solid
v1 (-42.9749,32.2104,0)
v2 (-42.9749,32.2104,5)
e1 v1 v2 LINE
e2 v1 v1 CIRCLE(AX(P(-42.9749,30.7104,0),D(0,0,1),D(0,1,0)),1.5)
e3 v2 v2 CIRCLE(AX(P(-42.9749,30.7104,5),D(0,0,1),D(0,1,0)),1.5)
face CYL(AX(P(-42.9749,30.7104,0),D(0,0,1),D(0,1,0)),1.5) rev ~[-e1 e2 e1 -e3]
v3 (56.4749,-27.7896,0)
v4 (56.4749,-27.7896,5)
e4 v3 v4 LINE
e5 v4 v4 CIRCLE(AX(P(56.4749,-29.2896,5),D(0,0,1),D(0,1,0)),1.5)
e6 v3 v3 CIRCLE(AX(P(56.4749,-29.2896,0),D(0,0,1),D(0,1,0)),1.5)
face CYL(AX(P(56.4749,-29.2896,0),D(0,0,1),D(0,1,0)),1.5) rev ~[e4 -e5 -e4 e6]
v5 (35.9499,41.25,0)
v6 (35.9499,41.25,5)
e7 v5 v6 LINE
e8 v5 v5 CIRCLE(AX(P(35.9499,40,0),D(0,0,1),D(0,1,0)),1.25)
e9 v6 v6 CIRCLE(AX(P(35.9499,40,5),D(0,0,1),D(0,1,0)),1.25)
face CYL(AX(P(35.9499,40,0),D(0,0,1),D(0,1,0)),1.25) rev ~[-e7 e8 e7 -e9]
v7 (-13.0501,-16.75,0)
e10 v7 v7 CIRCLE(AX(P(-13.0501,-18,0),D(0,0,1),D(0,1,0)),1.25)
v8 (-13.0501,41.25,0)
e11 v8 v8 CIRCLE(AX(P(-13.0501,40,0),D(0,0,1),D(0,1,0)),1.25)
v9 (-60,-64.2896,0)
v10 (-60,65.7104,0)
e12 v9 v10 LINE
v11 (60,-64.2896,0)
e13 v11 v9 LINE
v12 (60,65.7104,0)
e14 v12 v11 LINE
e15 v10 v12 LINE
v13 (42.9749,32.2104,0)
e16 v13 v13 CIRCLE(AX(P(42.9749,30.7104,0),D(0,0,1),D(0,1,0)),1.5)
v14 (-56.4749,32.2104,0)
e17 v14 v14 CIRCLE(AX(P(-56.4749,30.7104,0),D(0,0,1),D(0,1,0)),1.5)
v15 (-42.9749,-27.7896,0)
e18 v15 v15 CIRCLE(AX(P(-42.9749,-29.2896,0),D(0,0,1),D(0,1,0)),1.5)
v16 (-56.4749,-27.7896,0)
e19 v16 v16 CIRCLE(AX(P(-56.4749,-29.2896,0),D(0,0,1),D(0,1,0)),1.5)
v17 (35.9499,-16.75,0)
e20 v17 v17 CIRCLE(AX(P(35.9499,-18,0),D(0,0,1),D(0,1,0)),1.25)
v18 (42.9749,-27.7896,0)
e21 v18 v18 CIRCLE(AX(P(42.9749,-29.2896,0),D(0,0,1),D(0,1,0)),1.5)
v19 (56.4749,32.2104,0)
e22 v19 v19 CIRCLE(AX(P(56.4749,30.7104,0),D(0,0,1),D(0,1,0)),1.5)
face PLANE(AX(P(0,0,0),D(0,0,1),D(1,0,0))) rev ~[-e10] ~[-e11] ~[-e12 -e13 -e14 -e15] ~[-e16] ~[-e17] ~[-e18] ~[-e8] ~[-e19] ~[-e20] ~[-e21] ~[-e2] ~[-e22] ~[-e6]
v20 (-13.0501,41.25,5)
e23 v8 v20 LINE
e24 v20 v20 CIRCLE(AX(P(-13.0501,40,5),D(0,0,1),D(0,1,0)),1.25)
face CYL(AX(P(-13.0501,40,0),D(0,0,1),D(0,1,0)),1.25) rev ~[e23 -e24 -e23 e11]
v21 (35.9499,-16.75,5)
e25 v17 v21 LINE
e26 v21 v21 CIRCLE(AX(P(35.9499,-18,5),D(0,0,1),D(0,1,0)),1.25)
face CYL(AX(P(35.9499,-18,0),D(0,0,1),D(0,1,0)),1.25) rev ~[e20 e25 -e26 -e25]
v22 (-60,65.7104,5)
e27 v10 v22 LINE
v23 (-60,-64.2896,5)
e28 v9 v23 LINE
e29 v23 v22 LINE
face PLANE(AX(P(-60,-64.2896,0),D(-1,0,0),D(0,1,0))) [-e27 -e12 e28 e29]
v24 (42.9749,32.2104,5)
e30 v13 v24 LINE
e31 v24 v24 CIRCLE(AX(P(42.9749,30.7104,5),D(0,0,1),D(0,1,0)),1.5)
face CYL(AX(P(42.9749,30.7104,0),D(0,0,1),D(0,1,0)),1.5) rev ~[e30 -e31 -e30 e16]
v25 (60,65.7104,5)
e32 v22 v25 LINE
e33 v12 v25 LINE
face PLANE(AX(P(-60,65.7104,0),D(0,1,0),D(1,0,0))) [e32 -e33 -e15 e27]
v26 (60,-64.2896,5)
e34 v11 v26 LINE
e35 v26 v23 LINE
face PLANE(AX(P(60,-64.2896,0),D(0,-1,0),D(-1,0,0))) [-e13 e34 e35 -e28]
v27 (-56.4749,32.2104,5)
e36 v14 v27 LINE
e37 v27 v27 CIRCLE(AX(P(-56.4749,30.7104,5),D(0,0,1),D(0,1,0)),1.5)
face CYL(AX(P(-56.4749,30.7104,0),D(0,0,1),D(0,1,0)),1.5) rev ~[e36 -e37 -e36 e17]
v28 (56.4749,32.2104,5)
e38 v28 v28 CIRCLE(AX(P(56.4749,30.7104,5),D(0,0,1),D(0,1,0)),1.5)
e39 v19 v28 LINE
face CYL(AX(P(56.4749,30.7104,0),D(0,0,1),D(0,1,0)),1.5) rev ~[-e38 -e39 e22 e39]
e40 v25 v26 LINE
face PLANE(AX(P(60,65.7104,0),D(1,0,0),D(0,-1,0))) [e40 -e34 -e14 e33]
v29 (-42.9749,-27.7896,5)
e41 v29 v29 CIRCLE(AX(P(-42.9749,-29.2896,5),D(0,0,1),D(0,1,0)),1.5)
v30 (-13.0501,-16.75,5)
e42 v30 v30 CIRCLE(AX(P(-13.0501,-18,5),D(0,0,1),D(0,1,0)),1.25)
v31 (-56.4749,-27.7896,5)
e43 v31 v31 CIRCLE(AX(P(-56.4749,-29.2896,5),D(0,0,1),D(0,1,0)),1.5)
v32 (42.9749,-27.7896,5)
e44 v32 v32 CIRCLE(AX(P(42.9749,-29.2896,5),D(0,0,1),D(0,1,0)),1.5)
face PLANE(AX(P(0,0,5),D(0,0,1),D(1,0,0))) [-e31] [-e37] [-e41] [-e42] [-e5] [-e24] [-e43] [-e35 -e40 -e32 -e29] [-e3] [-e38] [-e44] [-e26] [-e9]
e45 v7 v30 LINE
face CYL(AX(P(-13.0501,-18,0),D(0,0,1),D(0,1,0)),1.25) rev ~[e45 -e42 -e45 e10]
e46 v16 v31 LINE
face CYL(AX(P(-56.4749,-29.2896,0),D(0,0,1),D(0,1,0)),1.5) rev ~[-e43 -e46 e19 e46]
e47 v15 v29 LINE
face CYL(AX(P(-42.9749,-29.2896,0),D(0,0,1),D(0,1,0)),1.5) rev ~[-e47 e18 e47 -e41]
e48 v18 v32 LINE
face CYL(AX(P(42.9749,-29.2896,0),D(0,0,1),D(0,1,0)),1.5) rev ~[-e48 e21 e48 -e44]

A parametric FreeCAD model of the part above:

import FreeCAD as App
import Part
import Sketcher
Q = App.Units.Quantity

doc = App.newDocument("Part")
body = doc.addObject("PartDesign::Body", "Body")

sketch1 = doc.addObject("Sketcher::SketchObject", "Sketch")
body.addObject(sketch1)
sketch1.AttachmentSupport = (doc.XY_Plane, [""])
sketch1.MapMode = "FlatFace"
sketch1.addGeometry(Part.LineSegment(App.Vector(60, 66, 0), App.Vector(-60, 66, 0)), False)
sketch1.addGeometry(Part.LineSegment(App.Vector(-60, 66, 0), App.Vector(-60, -64, 0)), False)
sketch1.addGeometry(Part.LineSegment(App.Vector(-60, -64, 0), App.Vector(60, -64, 0)), False)
sketch1.addGeometry(Part.LineSegment(App.Vector(60, -64, 0), App.Vector(60, 66, 0)), False)
sketch1.addConstraint(Sketcher.Constraint("Coincident", 0, 2, 1, 1))
sketch1.addConstraint(Sketcher.Constraint("Coincident", 1, 2, 2, 1))
sketch1.addConstraint(Sketcher.Constraint("Coincident", 2, 2, 3, 1))
sketch1.addConstraint(Sketcher.Constraint("Coincident", 3, 2, 0, 1))
sketch1.addConstraint(Sketcher.Constraint("Horizontal", 0))
sketch1.addConstraint(Sketcher.Constraint("Vertical", 1))
sketch1.addConstraint(Sketcher.Constraint("Horizontal", 2))
sketch1.addConstraint(Sketcher.Constraint("Vertical", 3))
sketch1.addConstraint(Sketcher.Constraint("DistanceX", 0, 2, 0, 1, Q("120 mm")))
sketch1.addConstraint(Sketcher.Constraint("DistanceY", 1, 2, 1, 1, Q("130 mm")))
sketch1.addConstraint(Sketcher.Constraint("DistanceX", 0, 2, -1, 1, Q("60 mm")))
sketch1.addConstraint(Sketcher.Constraint("DistanceY", -1, 1, 0, 2, Q("65.7104 mm")))
pad1 = doc.addObject("PartDesign::Pad", "Pad")
body.addObject(pad1)
pad1.Profile = sketch1
pad1.Length = 5

sketch2 = doc.addObject("Sketcher::SketchObject", "Sketch001")
body.addObject(sketch2)
sketch2.AttachmentSupport = (doc.XY_Plane, [""])
sketch2.MapMode = "FlatFace"
sketch2.addGeometry(Part.Circle(App.Vector(56.5, 30.7, 0), App.Vector(0, 0, 1), 1.5), False)
sketch2.addGeometry(Part.Circle(App.Vector(43, 30.7, 0), App.Vector(0, 0, 1), 1.5), False)
sketch2.addGeometry(Part.Circle(App.Vector(43, -29.3, 0), App.Vector(0, 0, 1), 1.5), False)
sketch2.addGeometry(Part.Circle(App.Vector(56.5, -29.3, 0), App.Vector(0, 0, 1), 1.5), False)
sketch2.addGeometry(Part.Circle(App.Vector(-43, 30.7, 0), App.Vector(0, 0, 1), 1.5), False)
sketch2.addGeometry(Part.Circle(App.Vector(-56.5, 30.7, 0), App.Vector(0, 0, 1), 1.5), False)
sketch2.addGeometry(Part.Circle(App.Vector(-56.5, -29.3, 0), App.Vector(0, 0, 1), 1.5), False)
sketch2.addGeometry(Part.Circle(App.Vector(-43, -29.3, 0), App.Vector(0, 0, 1), 1.5), False)
sketch2.addConstraint(Sketcher.Constraint("Equal", 0, 1))
sketch2.addConstraint(Sketcher.Constraint("Equal", 1, 2))
sketch2.addConstraint(Sketcher.Constraint("Equal", 2, 3))
sketch2.addConstraint(Sketcher.Constraint("Equal", 3, 4))
sketch2.addConstraint(Sketcher.Constraint("Equal", 4, 5))
sketch2.addConstraint(Sketcher.Constraint("Equal", 5, 6))
sketch2.addConstraint(Sketcher.Constraint("Equal", 6, 7))
sketch2.addConstraint(Sketcher.Constraint("Symmetric", 1, 3, 4, 3, -2))
sketch2.addConstraint(Sketcher.Constraint("Symmetric", 0, 3, 5, 3, -2))
sketch2.addConstraint(Sketcher.Constraint("Symmetric", 3, 3, 6, 3, -2))
sketch2.addConstraint(Sketcher.Constraint("Symmetric", 2, 3, 7, 3, -2))
sketch2.addConstraint(Sketcher.Constraint("Horizontal", 0, 3, 1, 3))
sketch2.addConstraint(Sketcher.Constraint("Horizontal", 2, 3, 3, 3))
sketch2.addConstraint(Sketcher.Constraint("Vertical", 1, 3, 2, 3))
sketch2.addConstraint(Sketcher.Constraint("Vertical", 0, 3, 3, 3))
sketch2.addConstraint(Sketcher.Constraint("Diameter", 0, Q("3 mm")))
sketch2.addConstraint(Sketcher.Constraint("DistanceY", 2, 3, 1, 3, Q("60 mm")))
sketch2.addConstraint(Sketcher.Constraint("DistanceX", 1, 3, 0, 3, Q("13.5 mm")))
sketch2.addConstraint(Sketcher.Constraint("DistanceX", -1, 1, 0, 3, Q("56.475 mm")))
sketch2.addConstraint(Sketcher.Constraint("DistanceY", -1, 1, 0, 3, Q("30.7104 mm")))
doc.recompute()
hole = doc.addObject("PartDesign::Hole", "Hole")
body.addObject(hole)
hole.Profile = sketch2
hole.ThreadType = "None"
hole.Diameter = 3
hole.DepthType = "Dimension"
hole.Depth = 5
hole.DrillPoint = "Flat"
hole.Reversed = True

sketch3 = doc.addObject("Sketcher::SketchObject", "Sketch002")
body.addObject(sketch3)
sketch3.AttachmentSupport = (doc.XY_Plane, [""])
sketch3.MapMode = "FlatFace"
sketch3.addGeometry(Part.Circle(App.Vector(35.9, 40, 0), App.Vector(0, 0, 1), 1.2), False)
sketch3.addGeometry(Part.Circle(App.Vector(35.9, -18, 0), App.Vector(0, 0, 1), 1.2), False)
sketch3.addGeometry(Part.Circle(App.Vector(-13.1, 40, 0), App.Vector(0, 0, 1), 1.2), False)
sketch3.addGeometry(Part.Circle(App.Vector(-13.1, -18, 0), App.Vector(0, 0, 1), 1.2), False)
sketch3.addConstraint(Sketcher.Constraint("Equal", 0, 1))
sketch3.addConstraint(Sketcher.Constraint("Equal", 1, 2))
sketch3.addConstraint(Sketcher.Constraint("Equal", 2, 3))
sketch3.addConstraint(Sketcher.Constraint("Horizontal", 0, 3, 2, 3))
sketch3.addConstraint(Sketcher.Constraint("Horizontal", 1, 3, 3, 3))
sketch3.addConstraint(Sketcher.Constraint("Vertical", 0, 3, 1, 3))
sketch3.addConstraint(Sketcher.Constraint("Vertical", 2, 3, 3, 3))
sketch3.addConstraint(Sketcher.Constraint("Diameter", 0, Q("2.5 mm")))
sketch3.addConstraint(Sketcher.Constraint("DistanceY", -1, 1, 0, 3, Q("40 mm")))
sketch3.addConstraint(Sketcher.Constraint("DistanceY", 1, 3, -1, 1, Q("18 mm")))
sketch3.addConstraint(Sketcher.Constraint("DistanceX", 2, 3, 0, 3, Q("49 mm")))
sketch3.addConstraint(Sketcher.Constraint("DistanceX", -1, 1, 0, 3, Q("35.95 mm")))
doc.recompute()
hole2 = doc.addObject("PartDesign::Hole", "Hole001")
body.addObject(hole2)
hole2.Profile = sketch3
hole2.ThreadType = "None"
hole2.Diameter = 2.5
hole2.DepthType = "Dimension"
hole2.Depth = 5
hole2.DrillPoint = "Flat"
hole2.Reversed = True

doc.recompute()
